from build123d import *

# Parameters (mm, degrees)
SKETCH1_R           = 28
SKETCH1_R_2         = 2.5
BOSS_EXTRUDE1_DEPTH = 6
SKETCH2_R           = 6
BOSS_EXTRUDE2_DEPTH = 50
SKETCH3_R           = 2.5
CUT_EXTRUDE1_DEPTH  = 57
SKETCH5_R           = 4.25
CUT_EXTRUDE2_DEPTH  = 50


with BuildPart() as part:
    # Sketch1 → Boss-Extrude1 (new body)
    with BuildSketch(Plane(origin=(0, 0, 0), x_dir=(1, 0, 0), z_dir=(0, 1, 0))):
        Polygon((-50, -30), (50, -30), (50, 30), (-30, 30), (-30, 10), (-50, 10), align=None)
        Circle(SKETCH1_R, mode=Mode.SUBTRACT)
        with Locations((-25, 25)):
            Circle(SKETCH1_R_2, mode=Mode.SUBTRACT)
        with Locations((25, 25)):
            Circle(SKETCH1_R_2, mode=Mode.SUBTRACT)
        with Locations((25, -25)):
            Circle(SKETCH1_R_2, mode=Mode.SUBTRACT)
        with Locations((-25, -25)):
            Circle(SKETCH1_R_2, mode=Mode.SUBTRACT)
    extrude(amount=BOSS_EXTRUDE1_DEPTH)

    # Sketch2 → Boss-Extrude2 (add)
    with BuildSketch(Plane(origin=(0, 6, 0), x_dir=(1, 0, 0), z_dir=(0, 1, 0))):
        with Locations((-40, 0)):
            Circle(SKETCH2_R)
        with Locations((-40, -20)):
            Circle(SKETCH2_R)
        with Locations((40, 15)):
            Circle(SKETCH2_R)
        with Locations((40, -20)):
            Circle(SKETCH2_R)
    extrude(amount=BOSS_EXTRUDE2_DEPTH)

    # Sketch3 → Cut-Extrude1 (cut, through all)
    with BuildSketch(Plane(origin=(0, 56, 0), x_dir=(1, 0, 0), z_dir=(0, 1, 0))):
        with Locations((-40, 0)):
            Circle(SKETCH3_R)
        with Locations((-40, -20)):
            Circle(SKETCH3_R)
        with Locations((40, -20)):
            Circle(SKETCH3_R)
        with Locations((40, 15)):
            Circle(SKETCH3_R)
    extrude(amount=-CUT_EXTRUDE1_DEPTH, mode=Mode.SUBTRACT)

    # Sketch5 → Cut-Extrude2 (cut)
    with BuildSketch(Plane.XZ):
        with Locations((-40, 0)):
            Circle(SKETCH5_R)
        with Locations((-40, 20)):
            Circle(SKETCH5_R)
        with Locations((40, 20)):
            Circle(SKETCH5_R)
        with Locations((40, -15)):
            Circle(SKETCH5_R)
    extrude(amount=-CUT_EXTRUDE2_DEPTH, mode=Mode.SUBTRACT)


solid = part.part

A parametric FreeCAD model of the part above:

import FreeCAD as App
import Part
import Sketcher

V = App.Vector


def add_polygon(sketch, points):
    """Adds a closed chain of lines whose ends are joined by coincident constraints."""
    first, n = sketch.GeometryCount, len(points)
    for a, b in zip(points, points[1:] + points[:1]):
        sketch.addGeometry(Part.LineSegment(App.Vector(*a, 0), App.Vector(*b, 0)), False)
    for i in range(n):
        sketch.addConstraint(Sketcher.Constraint("Coincident", first + i, 2, first + (i + 1) % n, 1))

doc = App.newDocument("Part")
params = doc.addObject("Spreadsheet::Sheet", "Params")
for row, (alias, value) in enumerate([
    ("sketch1_diameter", "5 mm"),
    ("sketch1_diameter2", "56 mm"),
    ("sketch1_width", "100 mm"),
    ("sketch1_width2", "80 mm"),
    ("sketch1_height", "60 mm"),
    ("pad1_length", "6 mm"),
    ("sketch2_diameter", "12 mm"),
    ("pad2_length", "50 mm"),
    ("sketch3_diameter", "5 mm"),
    ("sketch4_diameter", "8.5 mm"),
    ("pocket2_length", "50 mm"),
], start=1):
    params.set(f"A{row}", alias)
    params.set(f"B{row}", "=" + value)
    params.setAlias(f"B{row}", alias)

body = doc.addObject("PartDesign::Body", "Body")

sketch1 = doc.addObject("Sketcher::SketchObject", "Sketch")
body.addObject(sketch1)
sketch1.AttachmentSupport = (doc.XZ_Plane, [""])
sketch1.MapMode = "FlatFace"
add_polygon(sketch1, [(-50, 30), (50, 30), (50, -30), (-30, -30), (-30, -10), (-50, -10)])
sketch1.addGeometry(Part.Circle(V(-25, 25, 0), V(0, 0, 1), 2.5), False)
sketch1.addGeometry(Part.Circle(V(25, 25, 0), V(0, 0, 1), 2.5), False)
sketch1.addGeometry(Part.Circle(V(-25, -25, 0), V(0, 0, 1), 2.5), False)
sketch1.addGeometry(Part.Circle(V(0, 0, 0), V(0, 0, 1), 28), False)
sketch1.addGeometry(Part.Circle(V(25, -25, 0), V(0, 0, 1), 2.5), False)
sketch1.addConstraint(Sketcher.Constraint("Horizontal", 0))
sketch1.addConstraint(Sketcher.Constraint("Vertical", 1))
sketch1.addConstraint(Sketcher.Constraint("Horizontal", 2))
sketch1.addConstraint(Sketcher.Constraint("Vertical", 3))
sketch1.addConstraint(Sketcher.Constraint("Horizontal", 4))
sketch1.addConstraint(Sketcher.Constraint("Vertical", 5))
sketch1.addConstraint(Sketcher.Constraint("Coincident", 9, 3, -1, 1))
sketch1.addConstraint(Sketcher.Constraint("Equal", 6, 7))
sketch1.addConstraint(Sketcher.Constraint("Equal", 7, 8))
sketch1.addConstraint(Sketcher.Constraint("Equal", 8, 10))
sketch1.addConstraint(Sketcher.Constraint("Symmetric", 7, 3, 8, 3, -1, 1))
sketch1.addConstraint(Sketcher.Constraint("Symmetric", 6, 3, 10, 3, -1, 1))
sketch1.addConstraint(Sketcher.Constraint("Symmetric", 1, 2, 5, 2, -1, 1))
sketch1.addConstraint(Sketcher.Constraint("Symmetric", 6, 3, 7, 3, -2))
sketch1.addConstraint(Sketcher.Constraint("Equal", 4, 3))
sketch1.addConstraint(Sketcher.Constraint("Diameter", 6, 5.0))
sketch1.addConstraint(Sketcher.Constraint("Diameter", 9, 56.0))
sketch1.addConstraint(Sketcher.Constraint("DistanceX", 0, 1, 0, 2, 100.0))
sketch1.addConstraint(Sketcher.Constraint("DistanceX", 2, 2, 2, 1, 80.0))
sketch1.addConstraint(Sketcher.Constraint("DistanceY", 1, 2, 1, 1, 60.0))
sketch1.addConstraint(Sketcher.Constraint("DistanceX", 6, 3, -1, 1, 25.0))
sketch1.addConstraint(Sketcher.Constraint("DistanceY", -1, 1, 6, 3, 25.0))
sketch1.setExpression("Constraints[21]", "Params.sketch1_diameter")
sketch1.setExpression("Constraints[22]", "Params.sketch1_diameter2")
sketch1.setExpression("Constraints[23]", "Params.sketch1_width")
sketch1.setExpression("Constraints[24]", "Params.sketch1_width2")
sketch1.setExpression("Constraints[25]", "Params.sketch1_height")
pad1 = doc.addObject("PartDesign::Pad", "Pad")
body.addObject(pad1)
pad1.Profile = sketch1
pad1.setExpression("Length", "Params.pad1_length")
pad1.Reversed = True

sketch2 = doc.addObject("Sketcher::SketchObject", "Sketch001")
body.addObject(sketch2)
sketch2.AttachmentSupport = (doc.XZ_Plane, [""])
sketch2.MapMode = "FlatFace"
sketch2.AttachmentOffset = App.Placement(V(0, 0, -6), App.Rotation())
sketch2.addGeometry(Part.Circle(V(-40, 0, 0), V(0, 0, 1), 6), False)
sketch2.addGeometry(Part.Circle(V(-40, 20, 0), V(0, 0, 1), 6), False)
sketch2.addGeometry(Part.Circle(V(40, -15, 0), V(0, 0, 1), 6), False)
sketch2.addGeometry(Part.Circle(V(40, 20, 0), V(0, 0, 1), 6), False)
sketch2.addConstraint(Sketcher.Constraint("Equal", 0, 1))
sketch2.addConstraint(Sketcher.Constraint("Equal", 1, 2))
sketch2.addConstraint(Sketcher.Constraint("Equal", 2, 3))
sketch2.addConstraint(Sketcher.Constraint("Symmetric", 1, 3, 3, 3, -2))
sketch2.addConstraint(Sketcher.Constraint("PointOnObject", 0, 3, -1))
sketch2.addConstraint(Sketcher.Constraint("Vertical", 0, 3, 1, 3))
sketch2.addConstraint(Sketcher.Constraint("Vertical", 2, 3, 3, 3))
sketch2.addConstraint(Sketcher.Constraint("Diameter", 0, 12.0))
sketch2.addConstraint(Sketcher.Constraint("DistanceX", 0, 3, -1, 1, 40.0))
sketch2.addConstraint(Sketcher.Constraint("DistanceY", -1, 1, 1, 3, 20.0))
sketch2.addConstraint(Sketcher.Constraint("DistanceY", 2, 3, -1, 1, 15.0))
sketch2.setExpression("Constraints[7]", "Params.sketch2_diameter")
pad2 = doc.addObject("PartDesign::Pad", "Pad001")
body.addObject(pad2)
pad2.Profile = sketch2
pad2.setExpression("Length", "Params.pad2_length")
pad2.Reversed = True

sketch3 = doc.addObject("Sketcher::SketchObject", "Sketch002")
body.addObject(sketch3)
sketch3.AttachmentSupport = (doc.XZ_Plane, [""])
sketch3.MapMode = "FlatFace"
sketch3.AttachmentOffset = App.Placement(V(0, 0, -56), App.Rotation())
sketch3.addGeometry(Part.Circle(V(-40, 0, 0), V(0, 0, 1), 2.5), False)
sketch3.addGeometry(Part.Circle(V(-40, 20, 0), V(0, 0, 1), 2.5), False)
sketch3.addGeometry(Part.Circle(V(40, 20, 0), V(0, 0, 1), 2.5), False)
sketch3.addGeometry(Part.Circle(V(40, -15, 0), V(0, 0, 1), 2.5), False)
sketch3.addConstraint(Sketcher.Constraint("Equal", 0, 1))
sketch3.addConstraint(Sketcher.Constraint("Equal", 1, 2))
sketch3.addConstraint(Sketcher.Constraint("Equal", 2, 3))
sketch3.addConstraint(Sketcher.Constraint("Symmetric", 1, 3, 2, 3, -2))
sketch3.addConstraint(Sketcher.Constraint("PointOnObject", 0, 3, -1))
sketch3.addConstraint(Sketcher.Constraint("Vertical", 0, 3, 1, 3))
sketch3.addConstraint(Sketcher.Constraint("Vertical", 2, 3, 3, 3))
sketch3.addConstraint(Sketcher.Constraint("Diameter", 0, 5.0))
sketch3.addConstraint(Sketcher.Constraint("DistanceX", 0, 3, -1, 1, 40.0))
sketch3.addConstraint(Sketcher.Constraint("DistanceY", -1, 1, 1, 3, 20.0))
sketch3.addConstraint(Sketcher.Constraint("DistanceY", 3, 3, -1, 1, 15.0))
sketch3.setExpression("Constraints[7]", "Params.sketch3_diameter")
pocket1 = doc.addObject("PartDesign::Pocket", "Pocket")
body.addObject(pocket1)
pocket1.Profile = sketch3
pocket1.Type = "ThroughAll"
pocket1.Reversed = True

sketch4 = doc.addObject("Sketcher::SketchObject", "Sketch003")
body.addObject(sketch4)
sketch4.AttachmentSupport = (doc.XZ_Plane, [""])
sketch4.MapMode = "FlatFace"
sketch4.addGeometry(Part.Circle(V(-40, 0, 0), V(0, 0, 1), 4.2), False)
sketch4.addGeometry(Part.Circle(V(-40, 20, 0), V(0, 0, 1), 4.2), False)
sketch4.addGeometry(Part.Circle(V(40, 20, 0), V(0, 0, 1), 4.2), False)
sketch4.addGeometry(Part.Circle(V(40, -15, 0), V(0, 0, 1), 4.2), False)
sketch4.addConstraint(Sketcher.Constraint("Equal", 0, 1))
sketch4.addConstraint(Sketcher.Constraint("Equal", 1, 2))
sketch4.addConstraint(Sketcher.Constraint("Equal", 2, 3))
sketch4.addConstraint(Sketcher.Constraint("Symmetric", 1, 3, 2, 3, -2))
sketch4.addConstraint(Sketcher.Constraint("PointOnObject", 0, 3, -1))
sketch4.addConstraint(Sketcher.Constraint("Vertical", 0, 3, 1, 3))
sketch4.addConstraint(Sketcher.Constraint("Vertical", 2, 3, 3, 3))
sketch4.addConstraint(Sketcher.Constraint("Diameter", 0, 8.5))
sketch4.addConstraint(Sketcher.Constraint("DistanceX", 0, 3, -1, 1, 40.0))
sketch4.addConstraint(Sketcher.Constraint("DistanceY", -1, 1, 1, 3, 20.0))
sketch4.addConstraint(Sketcher.Constraint("DistanceY", 3, 3, -1, 1, 15.0))
sketch4.setExpression("Constraints[7]", "Params.sketch4_diameter")
pocket2 = doc.addObject("PartDesign::Pocket", "Pocket001")
body.addObject(pocket2)
pocket2.Profile = sketch4
pocket2.setExpression("Length", "Params.pocket2_length")

doc.recompute()
